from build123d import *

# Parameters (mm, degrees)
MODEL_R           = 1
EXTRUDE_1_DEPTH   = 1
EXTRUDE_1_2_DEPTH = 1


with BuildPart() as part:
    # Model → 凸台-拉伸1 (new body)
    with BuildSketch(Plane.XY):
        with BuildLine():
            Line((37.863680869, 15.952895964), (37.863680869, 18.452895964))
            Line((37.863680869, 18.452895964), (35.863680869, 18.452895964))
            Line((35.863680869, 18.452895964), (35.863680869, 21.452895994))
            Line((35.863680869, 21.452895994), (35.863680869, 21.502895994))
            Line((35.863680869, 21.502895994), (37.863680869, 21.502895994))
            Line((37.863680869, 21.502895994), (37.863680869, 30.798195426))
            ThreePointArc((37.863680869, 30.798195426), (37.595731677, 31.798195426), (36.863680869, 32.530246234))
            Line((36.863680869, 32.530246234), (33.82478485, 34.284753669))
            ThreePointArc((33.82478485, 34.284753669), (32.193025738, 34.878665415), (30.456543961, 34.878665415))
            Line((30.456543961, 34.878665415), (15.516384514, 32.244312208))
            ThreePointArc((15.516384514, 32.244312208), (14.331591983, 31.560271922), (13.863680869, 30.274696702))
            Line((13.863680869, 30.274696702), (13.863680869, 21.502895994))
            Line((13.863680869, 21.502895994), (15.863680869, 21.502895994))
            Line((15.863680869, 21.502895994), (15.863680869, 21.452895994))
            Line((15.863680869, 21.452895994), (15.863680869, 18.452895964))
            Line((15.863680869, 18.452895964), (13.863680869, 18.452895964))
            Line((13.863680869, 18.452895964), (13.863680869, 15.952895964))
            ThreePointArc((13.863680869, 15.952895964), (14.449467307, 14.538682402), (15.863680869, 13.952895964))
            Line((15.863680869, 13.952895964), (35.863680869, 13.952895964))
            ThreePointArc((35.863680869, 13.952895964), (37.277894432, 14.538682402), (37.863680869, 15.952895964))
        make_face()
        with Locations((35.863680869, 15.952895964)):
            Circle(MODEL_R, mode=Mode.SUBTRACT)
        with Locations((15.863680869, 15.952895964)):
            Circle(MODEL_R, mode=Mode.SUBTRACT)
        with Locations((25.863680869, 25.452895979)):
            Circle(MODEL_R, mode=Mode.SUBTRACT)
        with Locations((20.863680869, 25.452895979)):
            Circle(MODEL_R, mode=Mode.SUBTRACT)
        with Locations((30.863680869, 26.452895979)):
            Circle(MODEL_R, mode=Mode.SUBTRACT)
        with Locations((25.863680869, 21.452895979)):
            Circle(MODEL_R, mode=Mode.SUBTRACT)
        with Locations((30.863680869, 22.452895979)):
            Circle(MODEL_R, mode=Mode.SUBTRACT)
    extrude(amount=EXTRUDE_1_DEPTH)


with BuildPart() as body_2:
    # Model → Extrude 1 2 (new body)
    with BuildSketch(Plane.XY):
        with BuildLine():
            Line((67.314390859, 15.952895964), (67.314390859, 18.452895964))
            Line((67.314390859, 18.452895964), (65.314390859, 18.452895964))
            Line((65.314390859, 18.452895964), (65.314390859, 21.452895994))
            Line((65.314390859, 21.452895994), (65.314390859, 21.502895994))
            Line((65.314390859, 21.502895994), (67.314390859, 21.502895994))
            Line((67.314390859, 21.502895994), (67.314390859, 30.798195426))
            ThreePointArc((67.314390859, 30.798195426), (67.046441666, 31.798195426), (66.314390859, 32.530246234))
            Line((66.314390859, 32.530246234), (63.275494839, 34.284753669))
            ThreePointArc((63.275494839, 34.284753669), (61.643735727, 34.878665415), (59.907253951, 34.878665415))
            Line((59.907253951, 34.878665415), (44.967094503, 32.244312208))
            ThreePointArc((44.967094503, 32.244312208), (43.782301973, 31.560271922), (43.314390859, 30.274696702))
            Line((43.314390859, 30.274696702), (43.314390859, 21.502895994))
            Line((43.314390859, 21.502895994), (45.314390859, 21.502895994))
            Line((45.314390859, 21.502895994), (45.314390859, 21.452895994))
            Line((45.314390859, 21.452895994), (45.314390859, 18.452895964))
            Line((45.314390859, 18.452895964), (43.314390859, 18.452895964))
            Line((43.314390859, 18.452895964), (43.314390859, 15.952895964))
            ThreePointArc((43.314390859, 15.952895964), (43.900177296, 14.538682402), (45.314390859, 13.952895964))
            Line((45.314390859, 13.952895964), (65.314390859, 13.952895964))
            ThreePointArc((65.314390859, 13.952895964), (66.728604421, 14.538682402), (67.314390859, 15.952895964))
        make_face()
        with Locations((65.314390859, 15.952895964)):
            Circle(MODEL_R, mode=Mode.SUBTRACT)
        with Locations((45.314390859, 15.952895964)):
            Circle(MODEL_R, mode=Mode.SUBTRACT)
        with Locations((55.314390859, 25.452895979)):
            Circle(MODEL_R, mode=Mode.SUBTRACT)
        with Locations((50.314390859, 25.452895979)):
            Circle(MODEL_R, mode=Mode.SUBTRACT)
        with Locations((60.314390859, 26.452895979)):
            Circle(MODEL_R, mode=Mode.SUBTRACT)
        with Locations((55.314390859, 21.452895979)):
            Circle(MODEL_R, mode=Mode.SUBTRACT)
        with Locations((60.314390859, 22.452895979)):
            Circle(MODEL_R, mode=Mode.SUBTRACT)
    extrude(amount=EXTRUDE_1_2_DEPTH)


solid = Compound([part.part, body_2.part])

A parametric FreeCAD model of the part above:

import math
import FreeCAD as App
import Part
import Sketcher
Q = App.Units.Quantity

doc = App.newDocument("Part")
body = doc.addObject("PartDesign::Body", "Body")

# Sketch on XY plane
sketch1 = body.newObject("Sketcher::SketchObject", "Sketch")
sketch1.AttachmentSupport = (doc.getObject("XY_Plane"), [""])
sketch1.MapMode = "FlatFace"
sketch1.addGeometry([
    Part.LineSegment(App.Vector(37.9, 16, 0), App.Vector(37.9, 18.5, 0)),  # 0
    Part.LineSegment(App.Vector(37.9, 18.5, 0), App.Vector(35.9, 18.5, 0)),  # 1
    Part.LineSegment(App.Vector(35.9, 18.5, 0), App.Vector(35.9, 21.5, 0)),  # 2
    Part.LineSegment(App.Vector(35.9, 21.5, 0), App.Vector(37.9, 21.5, 0)),  # 3
    Part.LineSegment(App.Vector(37.9, 21.5, 0), App.Vector(37.9, 30.8, 0)),  # 4
    Part.ArcOfCircle(Part.Circle(App.Vector(35.9, 30.8, 0), App.Vector(0, 0, 1), 2), math.radians(0), math.radians(60)),  # 5
    Part.LineSegment(App.Vector(36.9, 32.5, 0), App.Vector(33.8, 34.3, 0)),  # 6
    Part.ArcOfCircle(Part.Circle(App.Vector(31.3, 30, 0), App.Vector(0, 0, 1), 5), math.radians(60), math.radians(100)),  # 7
    Part.LineSegment(App.Vector(30.5, 34.9, 0), App.Vector(15.5, 32.2, 0)),  # 8
    Part.ArcOfCircle(Part.Circle(App.Vector(15.9, 30.3, 0), App.Vector(0, 0, 1), 2), math.radians(100), math.radians(180)),  # 9
    Part.LineSegment(App.Vector(13.9, 30.3, 0), App.Vector(13.9, 21.5, 0)),  # 10
    Part.LineSegment(App.Vector(13.9, 21.5, 0), App.Vector(15.9, 21.5, 0)),  # 11
    Part.LineSegment(App.Vector(15.9, 21.5, 0), App.Vector(15.9, 18.5, 0)),  # 12
    Part.LineSegment(App.Vector(15.9, 18.5, 0), App.Vector(13.9, 18.5, 0)),  # 13
    Part.LineSegment(App.Vector(13.9, 18.5, 0), App.Vector(13.9, 16, 0)),  # 14
    Part.ArcOfCircle(Part.Circle(App.Vector(15.9, 16, 0), App.Vector(0, 0, 1), 2), math.radians(-180), math.radians(-90)),  # 15
    Part.LineSegment(App.Vector(15.9, 14, 0), App.Vector(35.9, 14, 0)),  # 16
    Part.ArcOfCircle(Part.Circle(App.Vector(35.9, 16, 0), App.Vector(0, 0, 1), 2), math.radians(-90), math.radians(0)),  # 17
    Part.Circle(App.Vector(15.9, 16, 0), App.Vector(0, 0, 1), 1),  # 18
    Part.Circle(App.Vector(35.9, 16, 0), App.Vector(0, 0, 1), 1),  # 19
    Part.Circle(App.Vector(20.9, 25.5, 0), App.Vector(0, 0, 1), 1),  # 20
    Part.Circle(App.Vector(25.9, 21.5, 0), App.Vector(0, 0, 1), 1),  # 21
    Part.Circle(App.Vector(30.9, 22.5, 0), App.Vector(0, 0, 1), 1),  # 22
    Part.Circle(App.Vector(25.9, 25.5, 0), App.Vector(0, 0, 1), 1),  # 23
    Part.Circle(App.Vector(30.9, 26.5, 0), App.Vector(0, 0, 1), 1),  # 24
], False)
sketch1.addConstraint([
    Sketcher.Constraint("Coincident", 0, 2, 1, 1),
    Sketcher.Constraint("Coincident", 1, 2, 2, 1),
    Sketcher.Constraint("Coincident", 2, 2, 3, 1),
    Sketcher.Constraint("Coincident", 3, 2, 4, 1),
    Sketcher.Constraint("Tangent", 4, 2, 5, 1),
    Sketcher.Constraint("Tangent", 5, 2, 6, 1),
    Sketcher.Constraint("Tangent", 6, 2, 7, 1),
    Sketcher.Constraint("Tangent", 7, 2, 8, 1),
    Sketcher.Constraint("Tangent", 8, 2, 9, 1),
    Sketcher.Constraint("Tangent", 9, 2, 10, 1),
    Sketcher.Constraint("Coincident", 10, 2, 11, 1),
    Sketcher.Constraint("Coincident", 11, 2, 12, 1),
    Sketcher.Constraint("Coincident", 12, 2, 13, 1),
    Sketcher.Constraint("Coincident", 13, 2, 14, 1),
    Sketcher.Constraint("Tangent", 14, 2, 15, 1),
    Sketcher.Constraint("Tangent", 15, 2, 16, 1),
    Sketcher.Constraint("Tangent", 16, 2, 17, 1),
    Sketcher.Constraint("Tangent", 17, 2, 0, 1),
    Sketcher.Constraint("Vertical", 0),
    Sketcher.Constraint("Horizontal", 1),
    Sketcher.Constraint("Vertical", 2),
    Sketcher.Constraint("Horizontal", 3),
    Sketcher.Constraint("Vertical", 4),
    Sketcher.Constraint("Vertical", 10),
    Sketcher.Constraint("Horizontal", 11),
    Sketcher.Constraint("Vertical", 12),
    Sketcher.Constraint("Horizontal", 13),
    Sketcher.Constraint("Vertical", 14),
    Sketcher.Constraint("Horizontal", 16),
    Sketcher.Constraint("Coincident", 18, 3, 15, 3),
    Sketcher.Constraint("Coincident", 19, 3, 17, 3),
    Sketcher.Constraint("Equal", 5, 9),
    Sketcher.Constraint("Equal", 9, 15),
    Sketcher.Constraint("Equal", 15, 17),
    Sketcher.Constraint("Equal", 18, 19),
    Sketcher.Constraint("Equal", 19, 20),
    Sketcher.Constraint("Equal", 20, 21),
    Sketcher.Constraint("Equal", 21, 22),
    Sketcher.Constraint("Equal", 22, 23),
    Sketcher.Constraint("Equal", 23, 24),
    Sketcher.Constraint("Horizontal", 20, 3, 23, 3),
    Sketcher.Constraint("Horizontal", 3, 2, 10, 2),
    Sketcher.Constraint("Horizontal", 1, 2, 12, 2),
    Sketcher.Constraint("Vertical", 9, 3, 15, 3),
    Sketcher.Constraint("Vertical", 5, 3, 17, 3),
    Sketcher.Constraint("Vertical", 21, 3, 23, 3),
    Sketcher.Constraint("Vertical", 22, 3, 24, 3),
    Sketcher.Constraint("Vertical", 19, 3, 1, 2),
    Sketcher.Constraint("Vertical", 18, 3, 11, 2),
    Sketcher.Constraint("Diameter", 18, Q("2 mm")),
    Sketcher.Constraint("Radius", 5, Q("2 mm")),
    Sketcher.Constraint("Radius", 7, Q("5 mm")),
    Sketcher.Constraint("DistanceX", 16, 1, 16, 2, Q("20 mm")),
    Sketcher.Constraint("Angle", 6, Q("150 deg")),
    Sketcher.Constraint("Angle", 8, Q("-170 deg")),
    Sketcher.Constraint("DistanceY", 0, 1, 0, 2, Q("2.5 mm")),
    Sketcher.Constraint("DistanceX", 9, 3, 20, 3, Q("5 mm")),
    Sketcher.Constraint("DistanceX", 20, 3, 21, 3, Q("5 mm")),
    Sketcher.Constraint("DistanceY", 21, 3, 20, 3, Q("4 mm")),
    Sketcher.Constraint("DistanceX", 21, 3, 22, 3, Q("5 mm")),
    Sketcher.Constraint("DistanceY", 21, 3, 22, 3, Q("1 mm")),
    Sketcher.Constraint("DistanceY", 22, 3, 24, 3, Q("4 mm")),
    Sketcher.Constraint("DistanceY", 0, 2, 22, 3, Q("4 mm")),
    Sketcher.Constraint("DistanceY", 2, 1, 2, 2, Q("3.05 mm")),
    Sketcher.Constraint("DistanceY", 4, 1, 4, 2, Q("9.295299 mm")),
    Sketcher.Constraint("DistanceY", 10, 2, 10, 1, Q("8.771801 mm")),
    Sketcher.Constraint("DistanceX", -1, 1, 5, 3, Q("35.863681 mm")),
    Sketcher.Constraint("DistanceY", -1, 1, 5, 3, Q("30.798195 mm")),
])
pad1 = body.newObject("PartDesign::Pad", "Pad")
pad1.Profile = sketch1
pad1.Length = 1
body2 = doc.addObject("PartDesign::Body", "Body001")

# Sketch on XY plane
sketch2 = body2.newObject("Sketcher::SketchObject", "Sketch001")
sketch2.AttachmentSupport = (doc.getObject("XY_Plane001"), [""])
sketch2.MapMode = "FlatFace"
sketch2.addGeometry([
    Part.LineSegment(App.Vector(67.3, 16, 0), App.Vector(67.3, 18.5, 0)),  # 0
    Part.LineSegment(App.Vector(67.3, 18.5, 0), App.Vector(65.3, 18.5, 0)),  # 1
    Part.LineSegment(App.Vector(65.3, 18.5, 0), App.Vector(65.3, 21.5, 0)),  # 2
    Part.LineSegment(App.Vector(65.3, 21.5, 0), App.Vector(67.3, 21.5, 0)),  # 3
    Part.LineSegment(App.Vector(67.3, 21.5, 0), App.Vector(67.3, 30.8, 0)),  # 4
    Part.ArcOfCircle(Part.Circle(App.Vector(65.3, 30.8, 0), App.Vector(0, 0, 1), 2), math.radians(0), math.radians(60)),  # 5
    Part.LineSegment(App.Vector(66.3, 32.5, 0), App.Vector(63.3, 34.3, 0)),  # 6
    Part.ArcOfCircle(Part.Circle(App.Vector(60.8, 30, 0), App.Vector(0, 0, 1), 5), math.radians(60), math.radians(100)),  # 7
    Part.LineSegment(App.Vector(59.9, 34.9, 0), App.Vector(45, 32.2, 0)),  # 8
    Part.ArcOfCircle(Part.Circle(App.Vector(45.3, 30.3, 0), App.Vector(0, 0, 1), 2), math.radians(100), math.radians(180)),  # 9
    Part.LineSegment(App.Vector(43.3, 30.3, 0), App.Vector(43.3, 21.5, 0)),  # 10
    Part.LineSegment(App.Vector(43.3, 21.5, 0), App.Vector(45.3, 21.5, 0)),  # 11
    Part.LineSegment(App.Vector(45.3, 21.5, 0), App.Vector(45.3, 18.5, 0)),  # 12
    Part.LineSegment(App.Vector(45.3, 18.5, 0), App.Vector(43.3, 18.5, 0)),  # 13
    Part.LineSegment(App.Vector(43.3, 18.5, 0), App.Vector(43.3, 16, 0)),  # 14
    Part.ArcOfCircle(Part.Circle(App.Vector(45.3, 16, 0), App.Vector(0, 0, 1), 2), math.radians(180), math.radians(270)),  # 15
    Part.LineSegment(App.Vector(45.3, 14, 0), App.Vector(65.3, 14, 0)),  # 16
    Part.ArcOfCircle(Part.Circle(App.Vector(65.3, 16, 0), App.Vector(0, 0, 1), 2), math.radians(-90), math.radians(0)),  # 17
    Part.Circle(App.Vector(45.3, 16, 0), App.Vector(0, 0, 1), 1),  # 18
    Part.Circle(App.Vector(65.3, 16, 0), App.Vector(0, 0, 1), 1),  # 19
    Part.Circle(App.Vector(50.3, 25.5, 0), App.Vector(0, 0, 1), 1),  # 20
    Part.Circle(App.Vector(55.3, 21.5, 0), App.Vector(0, 0, 1), 1),  # 21
    Part.Circle(App.Vector(60.3, 22.5, 0), App.Vector(0, 0, 1), 1),  # 22
    Part.Circle(App.Vector(55.3, 25.5, 0), App.Vector(0, 0, 1), 1),  # 23
    Part.Circle(App.Vector(60.3, 26.5, 0), App.Vector(0, 0, 1), 1),  # 24
], False)
sketch2.addConstraint([
    Sketcher.Constraint("Coincident", 0, 2, 1, 1),
    Sketcher.Constraint("Coincident", 1, 2, 2, 1),
    Sketcher.Constraint("Coincident", 2, 2, 3, 1),
    Sketcher.Constraint("Coincident", 3, 2, 4, 1),
    Sketcher.Constraint("Tangent", 4, 2, 5, 1),
    Sketcher.Constraint("Tangent", 5, 2, 6, 1),
    Sketcher.Constraint("Tangent", 6, 2, 7, 1),
    Sketcher.Constraint("Tangent", 7, 2, 8, 1),
    Sketcher.Constraint("Tangent", 8, 2, 9, 1),
    Sketcher.Constraint("Tangent", 9, 2, 10, 1),
    Sketcher.Constraint("Coincident", 10, 2, 11, 1),
    Sketcher.Constraint("Coincident", 11, 2, 12, 1),
    Sketcher.Constraint("Coincident", 12, 2, 13, 1),
    Sketcher.Constraint("Coincident", 13, 2, 14, 1),
    Sketcher.Constraint("Tangent", 14, 2, 15, 1),
    Sketcher.Constraint("Tangent", 15, 2, 16, 1),
    Sketcher.Constraint("Tangent", 16, 2, 17, 1),
    Sketcher.Constraint("Tangent", 17, 2, 0, 1),
    Sketcher.Constraint("Vertical", 0),
    Sketcher.Constraint("Horizontal", 1),
    Sketcher.Constraint("Vertical", 2),
    Sketcher.Constraint("Horizontal", 3),
    Sketcher.Constraint("Vertical", 4),
    Sketcher.Constraint("Vertical", 10),
    Sketcher.Constraint("Horizontal", 11),
    Sketcher.Constraint("Vertical", 12),
    Sketcher.Constraint("Horizontal", 13),
    Sketcher.Constraint("Vertical", 14),
    Sketcher.Constraint("Horizontal", 16),
    Sketcher.Constraint("Coincident", 18, 3, 15, 3),
    Sketcher.Constraint("Coincident", 19, 3, 17, 3),
    Sketcher.Constraint("Equal", 5, 9),
    Sketcher.Constraint("Equal", 9, 15),
    Sketcher.Constraint("Equal", 15, 17),
    Sketcher.Constraint("Equal", 18, 19),
    Sketcher.Constraint("Equal", 19, 20),
    Sketcher.Constraint("Equal", 20, 21),
    Sketcher.Constraint("Equal", 21, 22),
    Sketcher.Constraint("Equal", 22, 23),
    Sketcher.Constraint("Equal", 23, 24),
    Sketcher.Constraint("Horizontal", 20, 3, 23, 3),
    Sketcher.Constraint("Horizontal", 3, 2, 10, 2),
    Sketcher.Constraint("Horizontal", 1, 2, 12, 2),
    Sketcher.Constraint("Vertical", 9, 3, 15, 3),
    Sketcher.Constraint("Vertical", 5, 3, 17, 3),
    Sketcher.Constraint("Vertical", 21, 3, 23, 3),
    Sketcher.Constraint("Vertical", 22, 3, 24, 3),
    Sketcher.Constraint("Vertical", 19, 3, 1, 2),
    Sketcher.Constraint("Vertical", 18, 3, 11, 2),
    Sketcher.Constraint("Diameter", 18, Q("2 mm")),
    Sketcher.Constraint("Radius", 5, Q("2 mm")),
    Sketcher.Constraint("Radius", 7, Q("5 mm")),
    Sketcher.Constraint("DistanceX", 16, 1, 16, 2, Q("20 mm")),
    Sketcher.Constraint("Angle", 6, Q("150 deg")),
    Sketcher.Constraint("Angle", 8, Q("-170 deg")),
    Sketcher.Constraint("DistanceY", 0, 1, 0, 2, Q("2.5 mm")),
    Sketcher.Constraint("DistanceX", 9, 3, 20, 3, Q("5 mm")),
    Sketcher.Constraint("DistanceX", 20, 3, 21, 3, Q("5 mm")),
    Sketcher.Constraint("DistanceY", 21, 3, 20, 3, Q("4 mm")),
    Sketcher.Constraint("DistanceX", 21, 3, 22, 3, Q("5 mm")),
    Sketcher.Constraint("DistanceY", 21, 3, 22, 3, Q("1 mm")),
    Sketcher.Constraint("DistanceY", 22, 3, 24, 3, Q("4 mm")),
    Sketcher.Constraint("DistanceY", 0, 2, 22, 3, Q("4 mm")),
    Sketcher.Constraint("DistanceY", 2, 1, 2, 2, Q("3.05 mm")),
    Sketcher.Constraint("DistanceY", 4, 1, 4, 2, Q("9.295299 mm")),
    Sketcher.Constraint("DistanceY", 10, 2, 10, 1, Q("8.771801 mm")),
    Sketcher.Constraint("DistanceX", -1, 1, 5, 3, Q("65.314391 mm")),
    Sketcher.Constraint("DistanceY", -1, 1, 5, 3, Q("30.798195 mm")),
])
pad2 = body2.newObject("PartDesign::Pad", "Pad001")
pad2.Profile = sketch2
pad2.Length = 1

doc.recompute()
